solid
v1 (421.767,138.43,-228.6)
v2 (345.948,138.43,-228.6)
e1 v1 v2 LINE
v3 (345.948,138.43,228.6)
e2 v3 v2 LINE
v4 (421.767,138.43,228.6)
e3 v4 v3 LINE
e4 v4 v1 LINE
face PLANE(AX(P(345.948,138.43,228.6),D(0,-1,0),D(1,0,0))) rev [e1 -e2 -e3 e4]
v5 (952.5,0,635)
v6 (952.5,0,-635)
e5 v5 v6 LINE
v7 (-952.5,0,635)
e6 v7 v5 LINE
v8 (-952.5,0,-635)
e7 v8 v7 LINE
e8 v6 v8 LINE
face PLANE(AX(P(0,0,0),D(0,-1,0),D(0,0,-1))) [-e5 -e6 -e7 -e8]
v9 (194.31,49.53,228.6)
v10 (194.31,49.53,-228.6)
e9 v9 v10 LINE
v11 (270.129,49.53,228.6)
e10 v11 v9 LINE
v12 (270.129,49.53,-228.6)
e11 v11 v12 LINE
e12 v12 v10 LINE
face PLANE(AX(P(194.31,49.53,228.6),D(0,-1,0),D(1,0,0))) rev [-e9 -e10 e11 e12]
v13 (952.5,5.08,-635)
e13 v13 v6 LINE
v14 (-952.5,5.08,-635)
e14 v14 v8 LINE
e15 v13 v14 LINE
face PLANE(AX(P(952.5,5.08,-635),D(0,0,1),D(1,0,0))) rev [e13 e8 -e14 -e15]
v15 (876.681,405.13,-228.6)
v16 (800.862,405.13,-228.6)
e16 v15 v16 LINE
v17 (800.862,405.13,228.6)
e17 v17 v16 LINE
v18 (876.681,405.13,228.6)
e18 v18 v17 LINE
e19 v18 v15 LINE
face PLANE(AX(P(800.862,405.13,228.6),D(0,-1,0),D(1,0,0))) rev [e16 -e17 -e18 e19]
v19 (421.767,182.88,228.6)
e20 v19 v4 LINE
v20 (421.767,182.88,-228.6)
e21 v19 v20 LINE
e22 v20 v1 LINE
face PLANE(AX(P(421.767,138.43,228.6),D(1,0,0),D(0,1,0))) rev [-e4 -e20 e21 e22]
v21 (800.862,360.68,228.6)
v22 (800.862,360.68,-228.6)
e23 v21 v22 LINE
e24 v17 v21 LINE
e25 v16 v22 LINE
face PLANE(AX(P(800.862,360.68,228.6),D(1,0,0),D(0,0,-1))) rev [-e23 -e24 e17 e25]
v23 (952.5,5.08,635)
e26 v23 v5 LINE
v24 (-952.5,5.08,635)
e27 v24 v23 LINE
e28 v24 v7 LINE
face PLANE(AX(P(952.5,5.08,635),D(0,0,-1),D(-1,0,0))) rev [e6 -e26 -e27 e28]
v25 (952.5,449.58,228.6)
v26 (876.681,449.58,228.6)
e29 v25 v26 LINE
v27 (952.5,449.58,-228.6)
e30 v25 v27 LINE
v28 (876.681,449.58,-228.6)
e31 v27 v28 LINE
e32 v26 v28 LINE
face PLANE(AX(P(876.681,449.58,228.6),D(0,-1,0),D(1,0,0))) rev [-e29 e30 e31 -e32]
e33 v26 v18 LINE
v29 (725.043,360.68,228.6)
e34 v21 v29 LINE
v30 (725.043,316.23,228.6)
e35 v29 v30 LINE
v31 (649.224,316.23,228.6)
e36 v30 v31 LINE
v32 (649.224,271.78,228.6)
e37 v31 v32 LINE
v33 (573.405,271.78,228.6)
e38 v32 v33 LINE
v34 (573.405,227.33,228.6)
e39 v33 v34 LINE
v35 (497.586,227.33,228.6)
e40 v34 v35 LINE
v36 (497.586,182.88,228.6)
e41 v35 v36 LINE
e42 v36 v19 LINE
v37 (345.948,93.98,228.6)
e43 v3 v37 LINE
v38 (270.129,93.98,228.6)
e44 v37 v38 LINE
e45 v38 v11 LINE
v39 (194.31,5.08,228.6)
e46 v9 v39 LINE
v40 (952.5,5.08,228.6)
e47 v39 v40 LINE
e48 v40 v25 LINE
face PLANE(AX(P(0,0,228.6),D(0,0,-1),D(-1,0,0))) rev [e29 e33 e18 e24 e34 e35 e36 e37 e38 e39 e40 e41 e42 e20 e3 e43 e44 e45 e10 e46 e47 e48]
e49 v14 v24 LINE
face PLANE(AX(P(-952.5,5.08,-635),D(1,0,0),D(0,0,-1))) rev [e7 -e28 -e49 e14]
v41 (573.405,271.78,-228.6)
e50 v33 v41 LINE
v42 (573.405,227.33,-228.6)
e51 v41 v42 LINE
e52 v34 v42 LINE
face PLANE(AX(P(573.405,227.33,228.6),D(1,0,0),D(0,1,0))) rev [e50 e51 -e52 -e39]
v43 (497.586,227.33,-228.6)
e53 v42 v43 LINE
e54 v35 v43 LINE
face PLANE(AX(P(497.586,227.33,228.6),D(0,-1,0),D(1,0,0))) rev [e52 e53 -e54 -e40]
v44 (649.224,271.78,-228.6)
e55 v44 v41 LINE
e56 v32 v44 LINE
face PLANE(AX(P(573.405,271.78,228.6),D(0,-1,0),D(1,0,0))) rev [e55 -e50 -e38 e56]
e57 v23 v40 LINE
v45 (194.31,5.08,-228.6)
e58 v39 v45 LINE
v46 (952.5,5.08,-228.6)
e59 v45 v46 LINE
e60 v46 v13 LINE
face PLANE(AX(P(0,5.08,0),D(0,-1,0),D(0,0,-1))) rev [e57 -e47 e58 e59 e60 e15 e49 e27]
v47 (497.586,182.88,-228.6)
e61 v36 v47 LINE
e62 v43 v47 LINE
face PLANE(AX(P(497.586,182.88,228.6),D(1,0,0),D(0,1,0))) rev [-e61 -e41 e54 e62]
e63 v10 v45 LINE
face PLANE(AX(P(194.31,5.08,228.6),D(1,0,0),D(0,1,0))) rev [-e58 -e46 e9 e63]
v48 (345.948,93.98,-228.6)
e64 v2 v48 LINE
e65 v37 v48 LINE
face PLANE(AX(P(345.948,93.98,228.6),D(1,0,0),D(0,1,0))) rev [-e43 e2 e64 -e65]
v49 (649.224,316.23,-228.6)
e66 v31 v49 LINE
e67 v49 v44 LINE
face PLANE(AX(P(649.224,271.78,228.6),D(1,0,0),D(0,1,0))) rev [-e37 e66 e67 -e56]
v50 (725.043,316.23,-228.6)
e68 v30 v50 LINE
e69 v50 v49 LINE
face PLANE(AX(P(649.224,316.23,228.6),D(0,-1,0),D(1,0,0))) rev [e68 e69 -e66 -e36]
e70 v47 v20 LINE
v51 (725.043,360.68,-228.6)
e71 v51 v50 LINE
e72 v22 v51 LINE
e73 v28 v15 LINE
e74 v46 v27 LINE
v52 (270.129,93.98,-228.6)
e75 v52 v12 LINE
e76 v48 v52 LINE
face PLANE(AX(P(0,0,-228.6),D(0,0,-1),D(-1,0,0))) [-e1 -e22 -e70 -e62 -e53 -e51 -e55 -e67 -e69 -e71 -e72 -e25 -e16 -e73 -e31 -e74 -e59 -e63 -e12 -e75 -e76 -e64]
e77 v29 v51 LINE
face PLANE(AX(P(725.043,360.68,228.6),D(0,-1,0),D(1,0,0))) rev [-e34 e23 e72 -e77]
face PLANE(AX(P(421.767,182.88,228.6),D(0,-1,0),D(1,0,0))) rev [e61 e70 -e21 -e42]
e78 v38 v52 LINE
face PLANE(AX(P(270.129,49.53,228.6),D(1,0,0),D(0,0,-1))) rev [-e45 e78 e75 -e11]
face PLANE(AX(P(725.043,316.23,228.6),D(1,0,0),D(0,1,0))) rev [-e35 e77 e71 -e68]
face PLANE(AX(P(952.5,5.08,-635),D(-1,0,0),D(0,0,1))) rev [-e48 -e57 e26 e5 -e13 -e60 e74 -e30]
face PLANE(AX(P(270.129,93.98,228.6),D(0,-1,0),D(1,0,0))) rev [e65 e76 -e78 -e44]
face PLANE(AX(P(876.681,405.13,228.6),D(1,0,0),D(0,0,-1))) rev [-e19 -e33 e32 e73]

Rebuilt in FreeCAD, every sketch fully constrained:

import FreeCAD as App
import Part
import Sketcher
Q = App.Units.Quantity


def add_polygon(sketch, points):
    """Adds a closed chain of lines whose ends are joined by coincident constraints."""
    first, n = sketch.GeometryCount, len(points)
    for a, b in zip(points, points[1:] + points[:1]):
        sketch.addGeometry(Part.LineSegment(App.Vector(*a, 0), App.Vector(*b, 0)), False)
    for i in range(n):
        sketch.addConstraint(Sketcher.Constraint("Coincident", first + i, 2, first + (i + 1) % n, 1))

doc = App.newDocument("Part")
body = doc.addObject("PartDesign::Body", "Body")

# Sketch on XZ plane
sketch1 = body.newObject("Sketcher::SketchObject", "Sketch")
sketch1.AttachmentSupport = (doc.getObject("XZ_Plane"), [""])
sketch1.MapMode = "FlatFace"
add_polygon(sketch1, [(-952, -635), (-952, 635), (952, 635), (952, -635)])  # lines 0-3
sketch1.addConstraint([
    Sketcher.Constraint("Vertical", 0),
    Sketcher.Constraint("Horizontal", 1),
    Sketcher.Constraint("Vertical", 2),
    Sketcher.Constraint("Horizontal", 3),
    Sketcher.Constraint("Symmetric", 0, 2, 2, 2, -1, 1),
    Sketcher.Constraint("DistanceX", 1, 1, 1, 2, Q("75 in")),
    Sketcher.Constraint("DistanceY", 0, 1, 0, 2, Q("50 in")),
])
pad1 = body.newObject("PartDesign::Pad", "Pad")
pad1.Profile = sketch1
pad1.Length = Q("0.2 in")
pad1.Reversed = True

# Sketch on XY plane
sketch2 = body.newObject("Sketcher::SketchObject", "Sketch001")
sketch2.AttachmentSupport = (doc.getObject("XY_Plane"), [""])
sketch2.MapMode = "FlatFace"
add_polygon(sketch2, [(194, 50), (194, 5), (952, 5), (952, 450), (877, 450), (877, 405), (801, 405), (801, 361), (725, 361), (725, 316), (649, 316), (649, 272), (573, 272), (573, 227), (498, 227), (498, 183), (422, 183), (422, 138), (346, 138), (346, 94), (270, 94), (270, 50)])  # lines 0-21
sketch2.addConstraint([
    Sketcher.Constraint("Vertical", 0),
    Sketcher.Constraint("Horizontal", 1),
    Sketcher.Constraint("Vertical", 2),
    Sketcher.Constraint("Horizontal", 3),
    Sketcher.Constraint("Vertical", 4),
    Sketcher.Constraint("Horizontal", 5),
    Sketcher.Constraint("Vertical", 6),
    Sketcher.Constraint("Horizontal", 7),
    Sketcher.Constraint("Vertical", 8),
    Sketcher.Constraint("Horizontal", 9),
    Sketcher.Constraint("Vertical", 10),
    Sketcher.Constraint("Horizontal", 11),
    Sketcher.Constraint("Vertical", 12),
    Sketcher.Constraint("Horizontal", 13),
    Sketcher.Constraint("Vertical", 14),
    Sketcher.Constraint("Horizontal", 15),
    Sketcher.Constraint("Vertical", 16),
    Sketcher.Constraint("Horizontal", 17),
    Sketcher.Constraint("Vertical", 18),
    Sketcher.Constraint("Horizontal", 19),
    Sketcher.Constraint("Vertical", 20),
    Sketcher.Constraint("Horizontal", 21),
    Sketcher.Constraint("Equal", 3, 5),
    Sketcher.Constraint("Equal", 5, 7),
    Sketcher.Constraint("Equal", 7, 9),
    Sketcher.Constraint("Equal", 9, 11),
    Sketcher.Constraint("Equal", 11, 13),
    Sketcher.Constraint("Equal", 13, 15),
    Sketcher.Constraint("Equal", 15, 17),
    Sketcher.Constraint("Equal", 17, 19),
    Sketcher.Constraint("Equal", 19, 21),
    Sketcher.Constraint("Equal", 0, 4),
    Sketcher.Constraint("Equal", 4, 6),
    Sketcher.Constraint("Equal", 6, 8),
    Sketcher.Constraint("Equal", 8, 10),
    Sketcher.Constraint("Equal", 10, 12),
    Sketcher.Constraint("Equal", 12, 14),
    Sketcher.Constraint("Equal", 14, 16),
    Sketcher.Constraint("Equal", 16, 18),
    Sketcher.Constraint("Equal", 18, 20),
    Sketcher.Constraint("DistanceY", 2, 1, 2, 2, Q("17.5 in")),
    Sketcher.Constraint("DistanceX", 1, 1, 1, 2, Q("29.85 in")),
    Sketcher.Constraint("DistanceY", -1, 1, 0, 2, Q("0.2 in")),
    Sketcher.Constraint("DistanceX", -1, 1, 1, 2, Q("37.5 in")),
])
pad2 = body.newObject("PartDesign::Pad", "Pad001")
pad2.Profile = sketch2
pad2.Length = Q("18 in")
pad2.Midplane = True

doc.recompute()
